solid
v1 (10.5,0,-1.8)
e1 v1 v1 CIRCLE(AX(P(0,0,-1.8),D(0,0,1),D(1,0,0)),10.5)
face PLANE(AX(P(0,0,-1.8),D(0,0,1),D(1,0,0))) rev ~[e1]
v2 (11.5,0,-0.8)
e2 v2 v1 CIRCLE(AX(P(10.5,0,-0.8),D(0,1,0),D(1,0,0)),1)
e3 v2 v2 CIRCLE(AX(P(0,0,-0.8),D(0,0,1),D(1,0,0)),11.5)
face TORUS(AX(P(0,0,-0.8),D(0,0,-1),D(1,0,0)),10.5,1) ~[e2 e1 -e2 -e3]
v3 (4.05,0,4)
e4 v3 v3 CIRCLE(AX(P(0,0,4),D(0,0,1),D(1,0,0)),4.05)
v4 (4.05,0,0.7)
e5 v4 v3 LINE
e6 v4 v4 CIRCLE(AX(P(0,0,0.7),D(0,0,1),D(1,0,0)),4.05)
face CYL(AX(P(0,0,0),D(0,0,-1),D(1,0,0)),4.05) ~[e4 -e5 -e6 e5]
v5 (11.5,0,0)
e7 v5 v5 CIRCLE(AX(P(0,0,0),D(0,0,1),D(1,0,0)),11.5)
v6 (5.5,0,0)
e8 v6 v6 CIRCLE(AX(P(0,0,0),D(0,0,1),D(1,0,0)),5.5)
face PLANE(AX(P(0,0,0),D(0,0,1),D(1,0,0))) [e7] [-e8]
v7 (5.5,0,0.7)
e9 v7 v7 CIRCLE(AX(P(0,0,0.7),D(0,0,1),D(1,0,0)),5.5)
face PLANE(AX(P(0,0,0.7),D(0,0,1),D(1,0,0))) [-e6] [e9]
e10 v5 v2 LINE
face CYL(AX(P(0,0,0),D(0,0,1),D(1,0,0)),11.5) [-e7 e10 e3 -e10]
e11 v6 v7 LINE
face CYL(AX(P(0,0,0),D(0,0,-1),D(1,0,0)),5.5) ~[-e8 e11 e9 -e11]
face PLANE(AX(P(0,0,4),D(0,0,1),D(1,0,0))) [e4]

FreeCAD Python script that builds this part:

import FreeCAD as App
import Part
import Sketcher

V = App.Vector
Q = App.Units.Quantity


def edges_at(feature, points):
    """Names of the edges that pass closest to the given points."""
    edges = feature.Shape.Edges
    near = lambda p: min(range(len(edges)), key=lambda i: edges[i].distToShape(Part.Vertex(*p))[0])
    return sorted({f"Edge{near(p) + 1}" for p in points})

doc = App.newDocument("Part")
body = doc.addObject("PartDesign::Body", "Body")

sketch1 = body.newObject("Sketcher::SketchObject", "Sketch")
sketch1.AttachmentSupport = (doc.getObject("XY_Plane"), [""])
sketch1.MapMode = "FlatFace"
sketch1.addGeometry(Part.Circle(V(0, 0, 0), V(0, 0, 1), 11.5), False)
sketch1.addConstraint([
    Sketcher.Constraint("Coincident", 0, 3, -1, 1),
    Sketcher.Constraint("Diameter", 0, Q("23 mm")),
])
pad1 = body.newObject("PartDesign::Pad", "Pad")
pad1.Profile = sketch1
pad1.Length = 1.8
pad1.Reversed = True

sketch2 = body.newObject("Sketcher::SketchObject", "Sketch001")
sketch2.AttachmentSupport = (doc.getObject("XY_Plane"), [""])
sketch2.MapMode = "FlatFace"
sketch2.addGeometry(Part.Circle(V(0, 0, 0), V(0, 0, 1), 4.05), False)
sketch2.addConstraint([
    Sketcher.Constraint("Coincident", 0, 3, -1, 1),
    Sketcher.Constraint("Diameter", 0, Q("8.1 mm")),
])
pad2 = body.newObject("PartDesign::Pad", "Pad001")
pad2.Profile = sketch2
pad2.Length = 4

sketch3 = body.newObject("Sketcher::SketchObject", "Sketch002")
sketch3.AttachmentSupport = (doc.getObject("XY_Plane"), [""])
sketch3.MapMode = "FlatFace"
sketch3.addGeometry([
    Part.Circle(V(0, 0, 0), V(0, 0, 1), 5.5),
    Part.Circle(V(0, 0, 0), V(0, 0, 1), 4.05),
], False)
sketch3.addConstraint([
    Sketcher.Constraint("Coincident", 0, 3, -1, 1),
    Sketcher.Constraint("Coincident", 1, 3, -1, 1),
    Sketcher.Constraint("Diameter", 0, Q("11 mm")),
    Sketcher.Constraint("Diameter", 1, Q("8.1 mm")),
])
pad3 = body.newObject("PartDesign::Pad", "Pad002")
pad3.Profile = sketch3
pad3.Length = 0.7
doc.recompute()

fillet = body.newObject("PartDesign::Fillet", "Fillet")
fillet.Base = (pad3, edges_at(pad3, [(-11.5, 0, -1.8)]))
fillet.Radius = 1

doc.recompute()
